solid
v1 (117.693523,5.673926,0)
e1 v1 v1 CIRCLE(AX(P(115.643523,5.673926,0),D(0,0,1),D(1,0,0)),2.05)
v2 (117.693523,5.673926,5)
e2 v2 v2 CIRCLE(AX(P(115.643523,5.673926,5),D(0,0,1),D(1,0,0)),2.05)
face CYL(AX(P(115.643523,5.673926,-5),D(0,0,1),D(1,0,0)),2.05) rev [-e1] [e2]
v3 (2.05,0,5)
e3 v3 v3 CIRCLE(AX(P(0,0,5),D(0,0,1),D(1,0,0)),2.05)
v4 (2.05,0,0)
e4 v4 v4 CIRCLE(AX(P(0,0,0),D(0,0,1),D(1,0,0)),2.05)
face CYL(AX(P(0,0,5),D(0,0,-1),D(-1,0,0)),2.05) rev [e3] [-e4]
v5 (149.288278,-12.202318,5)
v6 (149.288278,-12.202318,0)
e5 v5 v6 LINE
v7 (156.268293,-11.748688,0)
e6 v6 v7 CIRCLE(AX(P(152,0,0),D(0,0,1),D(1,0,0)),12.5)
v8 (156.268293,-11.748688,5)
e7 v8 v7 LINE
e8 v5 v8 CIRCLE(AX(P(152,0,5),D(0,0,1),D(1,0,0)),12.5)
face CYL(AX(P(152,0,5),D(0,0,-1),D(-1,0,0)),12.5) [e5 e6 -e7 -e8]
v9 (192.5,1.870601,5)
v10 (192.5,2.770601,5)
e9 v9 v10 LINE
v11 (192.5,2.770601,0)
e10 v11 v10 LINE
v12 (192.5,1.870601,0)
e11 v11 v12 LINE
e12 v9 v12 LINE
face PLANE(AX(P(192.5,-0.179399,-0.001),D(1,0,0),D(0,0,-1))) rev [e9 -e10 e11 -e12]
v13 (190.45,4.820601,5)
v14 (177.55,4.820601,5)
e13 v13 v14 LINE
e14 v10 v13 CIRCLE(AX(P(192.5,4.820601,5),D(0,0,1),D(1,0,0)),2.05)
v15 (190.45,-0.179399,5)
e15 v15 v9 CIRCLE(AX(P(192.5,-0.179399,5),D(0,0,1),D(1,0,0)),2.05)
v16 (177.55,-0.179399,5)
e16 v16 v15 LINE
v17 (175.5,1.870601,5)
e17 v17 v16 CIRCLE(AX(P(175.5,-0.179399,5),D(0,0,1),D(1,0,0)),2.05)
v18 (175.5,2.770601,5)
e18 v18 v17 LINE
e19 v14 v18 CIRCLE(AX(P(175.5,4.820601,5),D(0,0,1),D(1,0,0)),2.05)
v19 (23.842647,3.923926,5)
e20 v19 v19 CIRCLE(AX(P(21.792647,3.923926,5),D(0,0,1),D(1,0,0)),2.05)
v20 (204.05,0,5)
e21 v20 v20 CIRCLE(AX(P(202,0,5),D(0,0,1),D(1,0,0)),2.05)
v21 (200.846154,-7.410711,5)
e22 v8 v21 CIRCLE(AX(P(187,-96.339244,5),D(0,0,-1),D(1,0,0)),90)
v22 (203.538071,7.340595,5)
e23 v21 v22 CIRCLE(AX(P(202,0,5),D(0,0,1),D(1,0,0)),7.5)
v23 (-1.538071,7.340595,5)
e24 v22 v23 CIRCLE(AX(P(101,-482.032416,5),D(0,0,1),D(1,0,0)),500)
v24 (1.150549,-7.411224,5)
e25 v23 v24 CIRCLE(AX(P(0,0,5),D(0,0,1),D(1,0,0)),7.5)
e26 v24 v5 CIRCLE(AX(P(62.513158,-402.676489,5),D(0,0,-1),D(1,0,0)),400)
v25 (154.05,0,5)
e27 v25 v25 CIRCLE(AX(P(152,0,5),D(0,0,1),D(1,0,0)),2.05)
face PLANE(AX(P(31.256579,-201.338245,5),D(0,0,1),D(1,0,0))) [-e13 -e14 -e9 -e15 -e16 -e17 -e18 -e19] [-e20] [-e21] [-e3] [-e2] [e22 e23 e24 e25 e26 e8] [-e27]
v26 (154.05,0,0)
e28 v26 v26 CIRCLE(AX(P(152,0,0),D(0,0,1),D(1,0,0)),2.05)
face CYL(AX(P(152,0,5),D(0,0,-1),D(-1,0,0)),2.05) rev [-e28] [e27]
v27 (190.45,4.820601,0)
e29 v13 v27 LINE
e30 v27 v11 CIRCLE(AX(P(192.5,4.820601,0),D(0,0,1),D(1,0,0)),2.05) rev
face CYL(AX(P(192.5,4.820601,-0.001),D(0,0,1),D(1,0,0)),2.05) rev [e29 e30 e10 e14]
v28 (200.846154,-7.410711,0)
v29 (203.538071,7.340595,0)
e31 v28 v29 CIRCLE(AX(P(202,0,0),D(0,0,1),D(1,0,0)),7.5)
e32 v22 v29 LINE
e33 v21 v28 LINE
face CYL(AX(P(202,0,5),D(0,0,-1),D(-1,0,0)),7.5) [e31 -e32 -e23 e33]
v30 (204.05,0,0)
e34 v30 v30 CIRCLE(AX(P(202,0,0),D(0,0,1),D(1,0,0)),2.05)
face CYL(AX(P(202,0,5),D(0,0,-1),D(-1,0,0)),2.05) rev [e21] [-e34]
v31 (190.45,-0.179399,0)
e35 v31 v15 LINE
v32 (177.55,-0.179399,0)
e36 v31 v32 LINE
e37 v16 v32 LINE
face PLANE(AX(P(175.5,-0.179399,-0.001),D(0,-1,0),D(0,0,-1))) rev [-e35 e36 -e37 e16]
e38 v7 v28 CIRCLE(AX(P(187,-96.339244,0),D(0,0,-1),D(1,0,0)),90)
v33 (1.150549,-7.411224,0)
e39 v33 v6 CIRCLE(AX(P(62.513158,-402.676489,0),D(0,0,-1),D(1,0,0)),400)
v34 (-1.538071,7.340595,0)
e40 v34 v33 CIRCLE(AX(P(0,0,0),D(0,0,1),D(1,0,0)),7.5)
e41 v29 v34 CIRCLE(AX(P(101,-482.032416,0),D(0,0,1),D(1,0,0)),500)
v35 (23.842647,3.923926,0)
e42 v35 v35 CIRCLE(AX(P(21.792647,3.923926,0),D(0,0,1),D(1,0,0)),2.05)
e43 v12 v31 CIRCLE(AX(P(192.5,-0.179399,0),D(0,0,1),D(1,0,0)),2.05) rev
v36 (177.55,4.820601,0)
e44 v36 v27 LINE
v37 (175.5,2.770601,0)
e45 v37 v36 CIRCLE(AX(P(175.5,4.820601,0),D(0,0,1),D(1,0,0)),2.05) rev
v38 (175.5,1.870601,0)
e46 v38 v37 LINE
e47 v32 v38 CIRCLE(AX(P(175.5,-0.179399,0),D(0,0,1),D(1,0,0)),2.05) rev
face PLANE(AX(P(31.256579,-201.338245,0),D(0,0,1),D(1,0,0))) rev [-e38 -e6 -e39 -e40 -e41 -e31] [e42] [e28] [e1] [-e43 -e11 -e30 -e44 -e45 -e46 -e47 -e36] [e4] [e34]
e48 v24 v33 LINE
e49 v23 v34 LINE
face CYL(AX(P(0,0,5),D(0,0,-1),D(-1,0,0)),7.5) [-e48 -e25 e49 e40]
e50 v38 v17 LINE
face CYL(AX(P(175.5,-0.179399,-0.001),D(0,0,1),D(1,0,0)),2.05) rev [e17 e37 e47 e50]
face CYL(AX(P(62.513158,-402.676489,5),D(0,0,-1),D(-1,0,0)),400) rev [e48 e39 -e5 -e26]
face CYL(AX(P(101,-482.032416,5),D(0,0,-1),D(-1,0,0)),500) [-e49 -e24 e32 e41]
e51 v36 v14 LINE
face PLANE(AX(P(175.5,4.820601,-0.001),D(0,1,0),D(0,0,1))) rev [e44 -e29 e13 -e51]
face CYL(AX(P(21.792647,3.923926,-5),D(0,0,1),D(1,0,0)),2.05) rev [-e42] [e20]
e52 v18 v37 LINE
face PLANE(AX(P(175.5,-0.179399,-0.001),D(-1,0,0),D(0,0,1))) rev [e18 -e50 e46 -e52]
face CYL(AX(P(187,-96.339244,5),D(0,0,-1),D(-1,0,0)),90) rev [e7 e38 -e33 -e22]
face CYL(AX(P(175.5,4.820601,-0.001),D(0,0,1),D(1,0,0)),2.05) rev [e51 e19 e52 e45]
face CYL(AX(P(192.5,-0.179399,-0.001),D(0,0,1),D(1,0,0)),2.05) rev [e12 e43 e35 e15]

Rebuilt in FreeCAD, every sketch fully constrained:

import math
import FreeCAD as App
import Part
import Sketcher

doc = App.newDocument("Part")
params = doc.addObject("Spreadsheet::Sheet", "Params")
for row, (alias, value) in enumerate([
    ("sketch1_radius", "400 mm"),
    ("sketch1_radius2", "90 mm"),
    ("sketch1_radius3", "500 mm"),
    ("sketch1_diameter", "4.1 mm"),
    ("sketch1_radius4", "7.5 mm"),
    ("pad1_length", "5 mm"),
    ("sketch2_diameter", "4.1 mm"),
    ("pocket1_length", "10 mm"),
    ("sketch3_width", "17 mm"),
    ("sketch3_height", "5 mm"),
    ("sketch4_diameter", "4.1 mm"),
    ("sketch5_diameter", "4.1 mm"),
    ("sketch6_diameter", "4.1 mm"),
    ("sketch7_diameter", "4.1 mm"),
], start=1):
    params.set(f"A{row}", alias)
    params.set(f"B{row}", "=" + value)
    params.setAlias(f"B{row}", alias)

body = doc.addObject("PartDesign::Body", "Body")

# Sketch on XY plane
sketch1 = body.newObject("Sketcher::SketchObject", "Sketch")
sketch1.AttachmentSupport = (doc.getObject("XY_Plane"), [""])
sketch1.MapMode = "FlatFace"
sketch1.addGeometry([
    Part.ArcOfCircle(Part.Circle(App.Vector(0, 0, 0), App.Vector(0, 0, 1), 7.5), math.radians(101.833956), math.radians(278.824391)),  # 0
    Part.ArcOfCircle(Part.Circle(App.Vector(62.513158, -402.676489, 0), App.Vector(0, 0, 1), 400), math.radians(77.470761), math.radians(98.824391)),  # 1
    Part.ArcOfCircle(Part.Circle(App.Vector(152, 0, 0), App.Vector(0, 0, 1), 12.5), math.radians(-102.529239), math.radians(-70.033942)),  # 2
    Part.ArcOfCircle(Part.Circle(App.Vector(187, -96.339244, 0), App.Vector(0, 0, 1), 90), math.radians(81.150117), math.radians(109.966058)),  # 3
    Part.ArcOfCircle(Part.Circle(App.Vector(202, 0, 0), App.Vector(0, 0, 1), 7.5), math.radians(-98.849883), math.radians(78.166044)),  # 4
    Part.ArcOfCircle(Part.Circle(App.Vector(101, -482.032416, 0), App.Vector(0, 0, 1), 500), math.radians(78.166044), math.radians(101.833956)),  # 5
    Part.Circle(App.Vector(0, 0, 0), App.Vector(0, 0, 1), 2.05),  # 6
    Part.Circle(App.Vector(152, 0, 0), App.Vector(0, 0, 1), 2.05),  # 7
    Part.Circle(App.Vector(202, 0, 0), App.Vector(0, 0, 1), 2.05),  # 8
], False)
sketch1.addConstraint([
    Sketcher.Constraint("Tangent", 0, 2, 1, 2),
    Sketcher.Constraint("Tangent", 1, 1, 2, 1),
    Sketcher.Constraint("Tangent", 2, 2, 3, 2),
    Sketcher.Constraint("Tangent", 3, 1, 4, 1),
    Sketcher.Constraint("Tangent", 4, 2, 5, 1),
    Sketcher.Constraint("Tangent", 5, 2, 0, 1),
    Sketcher.Constraint("Coincident", 0, 3, -1, 1),
    Sketcher.Constraint("Coincident", 6, 3, -1, 1),
    Sketcher.Constraint("Coincident", 7, 3, 2, 3),
    Sketcher.Constraint("Coincident", 8, 3, 4, 3),
    Sketcher.Constraint("Equal", 0, 4),
    Sketcher.Constraint("Equal", 6, 7),
    Sketcher.Constraint("Equal", 7, 8),
    Sketcher.Constraint("PointOnObject", 2, 3, -1),
    Sketcher.Constraint("PointOnObject", 4, 3, -1),
    Sketcher.Constraint("Radius", 1, 400.0),
    Sketcher.Constraint("Radius", 3, 90.0),
    Sketcher.Constraint("Radius", 5, 500.0),
    Sketcher.Constraint("Diameter", 6, 4.1),
    Sketcher.Constraint("Radius", 0, 7.5),
    Sketcher.Constraint("Radius", 2, 12.5),
    Sketcher.Constraint("DistanceX", -1, 1, 2, 3, 152.0),
    Sketcher.Constraint("DistanceX", -1, 1, 3, 3, 187.0),
])
sketch1.setExpression("Constraints[15]", "Params.sketch1_radius")
sketch1.setExpression("Constraints[16]", "Params.sketch1_radius2")
sketch1.setExpression("Constraints[17]", "Params.sketch1_radius3")
sketch1.setExpression("Constraints[18]", "Params.sketch1_diameter")
sketch1.setExpression("Constraints[19]", "Params.sketch1_radius4")
pad1 = body.newObject("PartDesign::Pad", "Pad")
pad1.Profile = sketch1
pad1.setExpression("Length", "Params.pad1_length")

# Sketch on XY plane
sketch2 = body.newObject("Sketcher::SketchObject", "Sketch001")
sketch2.AttachmentSupport = (doc.getObject("XY_Plane"), [""])
sketch2.MapMode = "FlatFace"
sketch2.AttachmentOffset = App.Placement(App.Vector(0, 0, 5), App.Rotation())
sketch2.addGeometry([
    Part.Circle(App.Vector(21.792647, 3.923926, 0), App.Vector(0, 0, 1), 2.05),
    Part.Circle(App.Vector(115.643523, 5.673926, 0), App.Vector(0, 0, 1), 2.05),
], False)
sketch2.addConstraint([
    Sketcher.Constraint("Equal", 0, 1),
    Sketcher.Constraint("Diameter", 0, 4.1),
    Sketcher.Constraint("DistanceY", 0, 3, 1, 3, 1.75),
    Sketcher.Constraint("DistanceX", -1, 1, 0, 3, 21.792647),
    Sketcher.Constraint("DistanceY", -1, 1, 0, 3, 3.923926),
    Sketcher.Constraint("DistanceX", -1, 1, 1, 3, 115.643523),
])
sketch2.setExpression("Constraints[1]", "Params.sketch2_diameter")
pocket1 = body.newObject("PartDesign::Pocket", "Pocket")
pocket1.Profile = sketch2
pocket1.setExpression("Length", "Params.pocket1_length")

# Sketch on XY plane
sketch3 = body.newObject("Sketcher::SketchObject", "Sketch002")
sketch3.AttachmentSupport = (doc.getObject("XY_Plane"), [""])
sketch3.MapMode = "FlatFace"
sketch3.AttachmentOffset = App.Placement(App.Vector(0, 0, 5), App.Rotation())
sketch3.addGeometry([
    Part.LineSegment(App.Vector(175.5, 4.820601, 0), App.Vector(175.5, -0.179399, 0)),
    Part.LineSegment(App.Vector(175.5, -0.179399, 0), App.Vector(192.5, -0.179399, 0)),
    Part.LineSegment(App.Vector(192.5, -0.179399, 0), App.Vector(192.5, 4.820601, 0)),
    Part.LineSegment(App.Vector(192.5, 4.820601, 0), App.Vector(175.5, 4.820601, 0)),
], False)
sketch3.addConstraint([
    Sketcher.Constraint("Coincident", 0, 2, 1, 1),
    Sketcher.Constraint("Coincident", 1, 2, 2, 1),
    Sketcher.Constraint("Coincident", 2, 2, 3, 1),
    Sketcher.Constraint("Coincident", 3, 2, 0, 1),
    Sketcher.Constraint("Vertical", 0),
    Sketcher.Constraint("Horizontal", 1),
    Sketcher.Constraint("Vertical", 2),
    Sketcher.Constraint("Horizontal", 3),
    Sketcher.Constraint("DistanceX", 1, 1, 1, 2, 17.0),
    Sketcher.Constraint("DistanceY", 0, 2, 0, 1, 5.0),
    Sketcher.Constraint("DistanceX", -1, 1, 0, 2, 175.5),
    Sketcher.Constraint("DistanceY", 0, 2, -1, 1, 0.179399),
])
sketch3.setExpression("Constraints[8]", "Params.sketch3_width")
sketch3.setExpression("Constraints[9]", "Params.sketch3_height")
pocket2 = body.newObject("PartDesign::Pocket", "Pocket001")
pocket2.Profile = sketch3
pocket2.Type = "UpToFirst"

# Sketch on XY plane
sketch4 = body.newObject("Sketcher::SketchObject", "Sketch003")
sketch4.AttachmentSupport = (doc.getObject("XY_Plane"), [""])
sketch4.MapMode = "FlatFace"
sketch4.AttachmentOffset = App.Placement(App.Vector(0, 0, 5), App.Rotation())
sketch4.addGeometry(Part.Circle(App.Vector(175.5, 4.820601, 0), App.Vector(0, 0, 1), 2.05), False)
sketch4.addConstraint([
    Sketcher.Constraint("Diameter", 0, 4.1),
    Sketcher.Constraint("DistanceX", -1, 1, 0, 3, 175.5),
    Sketcher.Constraint("DistanceY", -1, 1, 0, 3, 4.820601),
])
sketch4.setExpression("Constraints[0]", "Params.sketch4_diameter")
pocket3 = body.newObject("PartDesign::Pocket", "Pocket002")
pocket3.Profile = sketch4
pocket3.Type = "UpToFirst"

# Sketch on XY plane
sketch5 = body.newObject("Sketcher::SketchObject", "Sketch004")
sketch5.AttachmentSupport = (doc.getObject("XY_Plane"), [""])
sketch5.MapMode = "FlatFace"
sketch5.AttachmentOffset = App.Placement(App.Vector(0, 0, 5), App.Rotation())
sketch5.addGeometry(Part.Circle(App.Vector(175.5, -0.179399, 0), App.Vector(0, 0, 1), 2.05), False)
sketch5.addConstraint([
    Sketcher.Constraint("Diameter", 0, 4.1),
    Sketcher.Constraint("DistanceX", -1, 1, 0, 3, 175.5),
    Sketcher.Constraint("DistanceY", 0, 3, -1, 1, 0.179399),
])
sketch5.setExpression("Constraints[0]", "Params.sketch5_diameter")
pocket4 = body.newObject("PartDesign::Pocket", "Pocket003")
pocket4.Profile = sketch5
pocket4.Type = "UpToFirst"

# Sketch on XY plane
sketch6 = body.newObject("Sketcher::SketchObject", "Sketch005")
sketch6.AttachmentSupport = (doc.getObject("XY_Plane"), [""])
sketch6.MapMode = "FlatFace"
sketch6.AttachmentOffset = App.Placement(App.Vector(0, 0, 5), App.Rotation())
sketch6.addGeometry(Part.Circle(App.Vector(192.5, -0.179399, 0), App.Vector(0, 0, 1), 2.05), False)
sketch6.addConstraint([
    Sketcher.Constraint("Diameter", 0, 4.1),
    Sketcher.Constraint("DistanceX", -1, 1, 0, 3, 192.5),
    Sketcher.Constraint("DistanceY", 0, 3, -1, 1, 0.179399),
])
sketch6.setExpression("Constraints[0]", "Params.sketch6_diameter")
pocket5 = body.newObject("PartDesign::Pocket", "Pocket004")
pocket5.Profile = sketch6
pocket5.Type = "UpToFirst"

# Sketch on XY plane
sketch7 = body.newObject("Sketcher::SketchObject", "Sketch006")
sketch7.AttachmentSupport = (doc.getObject("XY_Plane"), [""])
sketch7.MapMode = "FlatFace"
sketch7.AttachmentOffset = App.Placement(App.Vector(0, 0, 5), App.Rotation())
sketch7.addGeometry(Part.Circle(App.Vector(192.5, 4.820601, 0), App.Vector(0, 0, 1), 2.05), False)
sketch7.addConstraint([
    Sketcher.Constraint("Diameter", 0, 4.1),
    Sketcher.Constraint("DistanceX", -1, 1, 0, 3, 192.5),
    Sketcher.Constraint("DistanceY", -1, 1, 0, 3, 4.820601),
])
sketch7.setExpression("Constraints[0]", "Params.sketch7_diameter")
pocket6 = body.newObject("PartDesign::Pocket", "Pocket005")
pocket6.Profile = sketch7
pocket6.Type = "UpToFirst"

doc.recompute()
